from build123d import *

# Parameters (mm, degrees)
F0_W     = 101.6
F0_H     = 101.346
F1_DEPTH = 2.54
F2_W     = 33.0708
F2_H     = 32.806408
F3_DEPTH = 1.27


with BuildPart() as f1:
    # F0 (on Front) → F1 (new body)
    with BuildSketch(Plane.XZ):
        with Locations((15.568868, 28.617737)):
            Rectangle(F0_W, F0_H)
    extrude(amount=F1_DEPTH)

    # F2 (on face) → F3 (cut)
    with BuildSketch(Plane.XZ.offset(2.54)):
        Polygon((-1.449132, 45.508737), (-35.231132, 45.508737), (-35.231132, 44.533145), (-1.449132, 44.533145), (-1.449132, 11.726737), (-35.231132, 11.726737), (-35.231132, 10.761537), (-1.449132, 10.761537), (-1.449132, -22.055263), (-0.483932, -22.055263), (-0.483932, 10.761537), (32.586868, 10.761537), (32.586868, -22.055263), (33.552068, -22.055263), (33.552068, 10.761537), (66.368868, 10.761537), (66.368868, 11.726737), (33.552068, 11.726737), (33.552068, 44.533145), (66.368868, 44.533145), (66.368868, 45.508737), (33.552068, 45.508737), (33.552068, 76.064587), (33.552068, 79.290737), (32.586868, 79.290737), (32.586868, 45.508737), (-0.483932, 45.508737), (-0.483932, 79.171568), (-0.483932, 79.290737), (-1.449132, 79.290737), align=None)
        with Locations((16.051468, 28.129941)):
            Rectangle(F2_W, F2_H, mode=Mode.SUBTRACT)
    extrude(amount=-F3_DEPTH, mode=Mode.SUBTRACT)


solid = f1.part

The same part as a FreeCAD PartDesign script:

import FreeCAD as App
import Part
import Sketcher
Q = App.Units.Quantity

doc = App.newDocument("Part")
params = doc.addObject("Spreadsheet::Sheet", "Params")
for row, (alias, value) in enumerate([
    ("sketch1_width", "4 in"),
    ("sketch1_height", "3.99 in"),
    ("pad1_length", "0.1 in"),
    ("sketch2_width", "1.33 in"),
    ("sketch2_width2", "0.038 in"),
    ("sketch2_width3", "1.302 in"),
    ("sketch2_width4", "1.292 in"),
    ("pocket1_length", "0.05 in"),
], start=1):
    params.set(f"A{row}", alias)
    params.set(f"B{row}", "=" + value)
    params.setAlias(f"B{row}", alias)

body = doc.addObject("PartDesign::Body", "Body")

# Sketch on XZ plane
sketch1 = body.newObject("Sketcher::SketchObject", "Sketch")
sketch1.AttachmentSupport = (doc.getObject("XZ_Plane"), [""])
sketch1.MapMode = "FlatFace"
sketch1.addGeometry(Part.LineSegment(App.Vector(-35, 79, 0), App.Vector(-35, -22, 0)), False)
sketch1.addGeometry(Part.LineSegment(App.Vector(-35, -22, 0), App.Vector(66, -22, 0)), False)
sketch1.addGeometry(Part.LineSegment(App.Vector(66, -22, 0), App.Vector(66, 79, 0)), False)
sketch1.addGeometry(Part.LineSegment(App.Vector(66, 79, 0), App.Vector(-35, 79, 0)), False)
sketch1.addConstraint(Sketcher.Constraint("Coincident", 0, 2, 1, 1))
sketch1.addConstraint(Sketcher.Constraint("Coincident", 1, 2, 2, 1))
sketch1.addConstraint(Sketcher.Constraint("Coincident", 2, 2, 3, 1))
sketch1.addConstraint(Sketcher.Constraint("Coincident", 3, 2, 0, 1))
sketch1.addConstraint(Sketcher.Constraint("Vertical", 0))
sketch1.addConstraint(Sketcher.Constraint("Horizontal", 1))
sketch1.addConstraint(Sketcher.Constraint("Vertical", 2))
sketch1.addConstraint(Sketcher.Constraint("Horizontal", 3))
sketch1.addConstraint(Sketcher.Constraint("DistanceX", 1, 1, 1, 2, Q("4 in")))
sketch1.addConstraint(Sketcher.Constraint("DistanceY", 0, 2, 0, 1, Q("3.99 in")))
sketch1.addConstraint(Sketcher.Constraint("DistanceX", -1, 1, 1, 2, 66.368868))
sketch1.addConstraint(Sketcher.Constraint("DistanceY", 0, 2, -1, 1, 22.055263))
sketch1.setExpression("Constraints[8]", "Params.sketch1_width")
sketch1.setExpression("Constraints[9]", "Params.sketch1_height")
pad1 = body.newObject("PartDesign::Pad", "Pad")
pad1.Profile = sketch1
pad1.setExpression("Length", "Params.pad1_length")

# Sketch on XZ plane
sketch2 = body.newObject("Sketcher::SketchObject", "Sketch001")
sketch2.AttachmentSupport = (doc.getObject("XZ_Plane"), [""])
sketch2.MapMode = "FlatFace"
sketch2.AttachmentOffset = App.Placement(App.Vector(0, 0, 0.1 * 25.4), App.Rotation())
sketch2.addGeometry(Part.LineSegment(App.Vector(-1.4, 45.5, 0), App.Vector(-35.2, 45.5, 0)), False)
sketch2.addGeometry(Part.LineSegment(App.Vector(-35.2, 45.5, 0), App.Vector(-35.2, 44.5, 0)), False)
sketch2.addGeometry(Part.LineSegment(App.Vector(-35.2, 44.5, 0), App.Vector(-1.4, 44.5, 0)), False)
sketch2.addGeometry(Part.LineSegment(App.Vector(-1.4, 44.5, 0), App.Vector(-1.4, 11.7, 0)), False)
sketch2.addGeometry(Part.LineSegment(App.Vector(-1.4, 11.7, 0), App.Vector(-35.2, 11.7, 0)), False)
sketch2.addGeometry(Part.LineSegment(App.Vector(-35.2, 11.7, 0), App.Vector(-35.2, 10.8, 0)), False)
sketch2.addGeometry(Part.LineSegment(App.Vector(-35.2, 10.8, 0), App.Vector(-1.4, 10.8, 0)), False)
sketch2.addGeometry(Part.LineSegment(App.Vector(-1.4, 10.8, 0), App.Vector(-1.4, -22.1, 0)), False)
sketch2.addGeometry(Part.LineSegment(App.Vector(-1.4, -22.1, 0), App.Vector(-0.5, -22.1, 0)), False)
sketch2.addGeometry(Part.LineSegment(App.Vector(-0.5, -22.1, 0), App.Vector(-0.5, 10.8, 0)), False)
sketch2.addGeometry(Part.LineSegment(App.Vector(-0.5, 10.8, 0), App.Vector(32.6, 10.8, 0)), False)
sketch2.addGeometry(Part.LineSegment(App.Vector(32.6, 10.8, 0), App.Vector(32.6, -22.1, 0)), False)
sketch2.addGeometry(Part.LineSegment(App.Vector(32.6, -22.1, 0), App.Vector(33.6, -22.1, 0)), False)
sketch2.addGeometry(Part.LineSegment(App.Vector(33.6, -22.1, 0), App.Vector(33.6, 10.8, 0)), False)
sketch2.addGeometry(Part.LineSegment(App.Vector(33.6, 10.8, 0), App.Vector(66.4, 10.8, 0)), False)
sketch2.addGeometry(Part.LineSegment(App.Vector(66.4, 10.8, 0), App.Vector(66.4, 11.7, 0)), False)
sketch2.addGeometry(Part.LineSegment(App.Vector(66.4, 11.7, 0), App.Vector(33.6, 11.7, 0)), False)
sketch2.addGeometry(Part.LineSegment(App.Vector(33.6, 11.7, 0), App.Vector(33.6, 44.5, 0)), False)
sketch2.addGeometry(Part.LineSegment(App.Vector(33.6, 44.5, 0), App.Vector(66.4, 44.5, 0)), False)
sketch2.addGeometry(Part.LineSegment(App.Vector(66.4, 44.5, 0), App.Vector(66.4, 45.5, 0)), False)
sketch2.addGeometry(Part.LineSegment(App.Vector(66.4, 45.5, 0), App.Vector(33.6, 45.5, 0)), False)
sketch2.addGeometry(Part.LineSegment(App.Vector(33.6, 45.5, 0), App.Vector(33.6, 79.3, 0)), False)
sketch2.addGeometry(Part.LineSegment(App.Vector(33.6, 79.3, 0), App.Vector(32.6, 79.3, 0)), False)
sketch2.addGeometry(Part.LineSegment(App.Vector(32.6, 79.3, 0), App.Vector(32.6, 45.5, 0)), False)
sketch2.addGeometry(Part.LineSegment(App.Vector(32.6, 45.5, 0), App.Vector(-0.5, 45.5, 0)), False)
sketch2.addGeometry(Part.LineSegment(App.Vector(-0.5, 45.5, 0), App.Vector(-0.5, 79.3, 0)), False)
sketch2.addGeometry(Part.LineSegment(App.Vector(-0.5, 79.3, 0), App.Vector(-1.4, 79.3, 0)), False)
sketch2.addGeometry(Part.LineSegment(App.Vector(-1.4, 79.3, 0), App.Vector(-1.4, 45.5, 0)), False)
sketch2.addGeometry(Part.LineSegment(App.Vector(32.6, 11.7, 0), App.Vector(-0.5, 11.7, 0)), False)
sketch2.addGeometry(Part.LineSegment(App.Vector(-0.5, 11.7, 0), App.Vector(-0.5, 44.5, 0)), False)
sketch2.addGeometry(Part.LineSegment(App.Vector(-0.5, 44.5, 0), App.Vector(32.6, 44.5, 0)), False)
sketch2.addGeometry(Part.LineSegment(App.Vector(32.6, 44.5, 0), App.Vector(32.6, 11.7, 0)), False)
sketch2.addConstraint(Sketcher.Constraint("Coincident", 0, 2, 1, 1))
sketch2.addConstraint(Sketcher.Constraint("Coincident", 1, 2, 2, 1))
sketch2.addConstraint(Sketcher.Constraint("Coincident", 2, 2, 3, 1))
sketch2.addConstraint(Sketcher.Constraint("Coincident", 3, 2, 4, 1))
sketch2.addConstraint(Sketcher.Constraint("Coincident", 4, 2, 5, 1))
sketch2.addConstraint(Sketcher.Constraint("Coincident", 5, 2, 6, 1))
sketch2.addConstraint(Sketcher.Constraint("Coincident", 6, 2, 7, 1))
sketch2.addConstraint(Sketcher.Constraint("Coincident", 7, 2, 8, 1))
sketch2.addConstraint(Sketcher.Constraint("Coincident", 8, 2, 9, 1))
sketch2.addConstraint(Sketcher.Constraint("Coincident", 9, 2, 10, 1))
sketch2.addConstraint(Sketcher.Constraint("Coincident", 10, 2, 11, 1))
sketch2.addConstraint(Sketcher.Constraint("Coincident", 11, 2, 12, 1))
sketch2.addConstraint(Sketcher.Constraint("Coincident", 12, 2, 13, 1))
sketch2.addConstraint(Sketcher.Constraint("Coincident", 13, 2, 14, 1))
sketch2.addConstraint(Sketcher.Constraint("Coincident", 14, 2, 15, 1))
sketch2.addConstraint(Sketcher.Constraint("Coincident", 15, 2, 16, 1))
sketch2.addConstraint(Sketcher.Constraint("Coincident", 16, 2, 17, 1))
sketch2.addConstraint(Sketcher.Constraint("Coincident", 17, 2, 18, 1))
sketch2.addConstraint(Sketcher.Constraint("Coincident", 18, 2, 19, 1))
sketch2.addConstraint(Sketcher.Constraint("Coincident", 19, 2, 20, 1))
sketch2.addConstraint(Sketcher.Constraint("Coincident", 20, 2, 21, 1))
sketch2.addConstraint(Sketcher.Constraint("Coincident", 21, 2, 22, 1))
sketch2.addConstraint(Sketcher.Constraint("Coincident", 22, 2, 23, 1))
sketch2.addConstraint(Sketcher.Constraint("Coincident", 23, 2, 24, 1))
sketch2.addConstraint(Sketcher.Constraint("Coincident", 24, 2, 25, 1))
sketch2.addConstraint(Sketcher.Constraint("Coincident", 25, 2, 26, 1))
sketch2.addConstraint(Sketcher.Constraint("Coincident", 26, 2, 27, 1))
sketch2.addConstraint(Sketcher.Constraint("Coincident", 27, 2, 0, 1))
sketch2.addConstraint(Sketcher.Constraint("Coincident", 28, 2, 29, 1))
sketch2.addConstraint(Sketcher.Constraint("Coincident", 29, 2, 30, 1))
sketch2.addConstraint(Sketcher.Constraint("Coincident", 30, 2, 31, 1))
sketch2.addConstraint(Sketcher.Constraint("Coincident", 31, 2, 28, 1))
sketch2.addConstraint(Sketcher.Constraint("Horizontal", 0))
sketch2.addConstraint(Sketcher.Constraint("Vertical", 1))
sketch2.addConstraint(Sketcher.Constraint("Horizontal", 2))
sketch2.addConstraint(Sketcher.Constraint("Vertical", 3))
sketch2.addConstraint(Sketcher.Constraint("Horizontal", 4))
sketch2.addConstraint(Sketcher.Constraint("Vertical", 5))
sketch2.addConstraint(Sketcher.Constraint("Horizontal", 6))
sketch2.addConstraint(Sketcher.Constraint("Vertical", 7))
sketch2.addConstraint(Sketcher.Constraint("Horizontal", 8))
sketch2.addConstraint(Sketcher.Constraint("Vertical", 9))
sketch2.addConstraint(Sketcher.Constraint("Horizontal", 10))
sketch2.addConstraint(Sketcher.Constraint("Vertical", 11))
sketch2.addConstraint(Sketcher.Constraint("Horizontal", 12))
sketch2.addConstraint(Sketcher.Constraint("Vertical", 13))
sketch2.addConstraint(Sketcher.Constraint("Horizontal", 14))
sketch2.addConstraint(Sketcher.Constraint("Vertical", 15))
sketch2.addConstraint(Sketcher.Constraint("Horizontal", 16))
sketch2.addConstraint(Sketcher.Constraint("Vertical", 17))
sketch2.addConstraint(Sketcher.Constraint("Horizontal", 18))
sketch2.addConstraint(Sketcher.Constraint("Vertical", 19))
sketch2.addConstraint(Sketcher.Constraint("Horizontal", 20))
sketch2.addConstraint(Sketcher.Constraint("Vertical", 21))
sketch2.addConstraint(Sketcher.Constraint("Horizontal", 22))
sketch2.addConstraint(Sketcher.Constraint("Vertical", 23))
sketch2.addConstraint(Sketcher.Constraint("Horizontal", 24))
sketch2.addConstraint(Sketcher.Constraint("Vertical", 25))
sketch2.addConstraint(Sketcher.Constraint("Horizontal", 26))
sketch2.addConstraint(Sketcher.Constraint("Vertical", 27))
sketch2.addConstraint(Sketcher.Constraint("Horizontal", 28))
sketch2.addConstraint(Sketcher.Constraint("Vertical", 29))
sketch2.addConstraint(Sketcher.Constraint("Horizontal", 30))
sketch2.addConstraint(Sketcher.Constraint("Vertical", 31))
sketch2.addConstraint(Sketcher.Constraint("Horizontal", 6, 2, 9, 2))
sketch2.addConstraint(Sketcher.Constraint("Horizontal", 8, 2, 11, 2))
sketch2.addConstraint(Sketcher.Constraint("Horizontal", 10, 2, 13, 2))
sketch2.addConstraint(Sketcher.Constraint("Horizontal", 4, 2, 15, 2))
sketch2.addConstraint(Sketcher.Constraint("Horizontal", 2, 2, 17, 2))
sketch2.addConstraint(Sketcher.Constraint("Horizontal", 0, 2, 19, 2))
sketch2.addConstraint(Sketcher.Constraint("Horizontal", 20, 2, 23, 2))
sketch2.addConstraint(Sketcher.Constraint("Horizontal", 22, 2, 25, 2))
sketch2.addConstraint(Sketcher.Constraint("Horizontal", 16, 2, 28, 2))
sketch2.addConstraint(Sketcher.Constraint("Horizontal", 18, 2, 29, 2))
sketch2.addConstraint(Sketcher.Constraint("Vertical", 1, 2, 4, 2))
sketch2.addConstraint(Sketcher.Constraint("Vertical", 3, 2, 6, 2))
sketch2.addConstraint(Sketcher.Constraint("Vertical", 13, 2, 16, 2))
sketch2.addConstraint(Sketcher.Constraint("Vertical", 15, 2, 18, 2))
sketch2.addConstraint(Sketcher.Constraint("Vertical", 17, 2, 20, 2))
sketch2.addConstraint(Sketcher.Constraint("Vertical", 11, 2, 22, 2))
sketch2.addConstraint(Sketcher.Constraint("Vertical", 9, 2, 24, 2))
sketch2.addConstraint(Sketcher.Constraint("Vertical", 7, 2, 26, 2))
sketch2.addConstraint(Sketcher.Constraint("Vertical", 25, 2, 28, 2))
sketch2.addConstraint(Sketcher.Constraint("Vertical", 23, 2, 30, 2))
sketch2.addConstraint(Sketcher.Constraint("Equal", 8, 12))
sketch2.addConstraint(Sketcher.Constraint("Equal", 26, 5))
sketch2.addConstraint(Sketcher.Constraint("Equal", 20, 7))
sketch2.addConstraint(Sketcher.Constraint("Equal", 6, 21))
sketch2.addConstraint(Sketcher.Constraint("DistanceX", 0, 2, 0, 1, Q("1.33 in")))
sketch2.addConstraint(Sketcher.Constraint("DistanceX", 8, 1, 8, 2, Q("0.038 in")))
sketch2.addConstraint(Sketcher.Constraint("DistanceX", 10, 1, 10, 2, Q("1.302 in")))
sketch2.addConstraint(Sketcher.Constraint("DistanceX", 14, 1, 14, 2, Q("1.292 in")))
sketch2.addConstraint(Sketcher.Constraint("DistanceY", 3, 2, 0, 2, Q("1.33 in")))
sketch2.addConstraint(Sketcher.Constraint("DistanceY", 1, 2, 1, 1, 0.975592))
sketch2.addConstraint(Sketcher.Constraint("DistanceX", 8, 2, -1, 1, 0.483932))
sketch2.addConstraint(Sketcher.Constraint("DistanceY", -1, 1, 0, 2, 45.508737))
sketch2.setExpression("Constraints[88]", "Params.sketch2_width")
sketch2.setExpression("Constraints[89]", "Params.sketch2_width2")
sketch2.setExpression("Constraints[90]", "Params.sketch2_width3")
sketch2.setExpression("Constraints[91]", "Params.sketch2_width4")
pocket1 = body.newObject("PartDesign::Pocket", "Pocket")
pocket1.Profile = sketch2
pocket1.setExpression("Length", "Params.pocket1_length")

doc.recompute()
